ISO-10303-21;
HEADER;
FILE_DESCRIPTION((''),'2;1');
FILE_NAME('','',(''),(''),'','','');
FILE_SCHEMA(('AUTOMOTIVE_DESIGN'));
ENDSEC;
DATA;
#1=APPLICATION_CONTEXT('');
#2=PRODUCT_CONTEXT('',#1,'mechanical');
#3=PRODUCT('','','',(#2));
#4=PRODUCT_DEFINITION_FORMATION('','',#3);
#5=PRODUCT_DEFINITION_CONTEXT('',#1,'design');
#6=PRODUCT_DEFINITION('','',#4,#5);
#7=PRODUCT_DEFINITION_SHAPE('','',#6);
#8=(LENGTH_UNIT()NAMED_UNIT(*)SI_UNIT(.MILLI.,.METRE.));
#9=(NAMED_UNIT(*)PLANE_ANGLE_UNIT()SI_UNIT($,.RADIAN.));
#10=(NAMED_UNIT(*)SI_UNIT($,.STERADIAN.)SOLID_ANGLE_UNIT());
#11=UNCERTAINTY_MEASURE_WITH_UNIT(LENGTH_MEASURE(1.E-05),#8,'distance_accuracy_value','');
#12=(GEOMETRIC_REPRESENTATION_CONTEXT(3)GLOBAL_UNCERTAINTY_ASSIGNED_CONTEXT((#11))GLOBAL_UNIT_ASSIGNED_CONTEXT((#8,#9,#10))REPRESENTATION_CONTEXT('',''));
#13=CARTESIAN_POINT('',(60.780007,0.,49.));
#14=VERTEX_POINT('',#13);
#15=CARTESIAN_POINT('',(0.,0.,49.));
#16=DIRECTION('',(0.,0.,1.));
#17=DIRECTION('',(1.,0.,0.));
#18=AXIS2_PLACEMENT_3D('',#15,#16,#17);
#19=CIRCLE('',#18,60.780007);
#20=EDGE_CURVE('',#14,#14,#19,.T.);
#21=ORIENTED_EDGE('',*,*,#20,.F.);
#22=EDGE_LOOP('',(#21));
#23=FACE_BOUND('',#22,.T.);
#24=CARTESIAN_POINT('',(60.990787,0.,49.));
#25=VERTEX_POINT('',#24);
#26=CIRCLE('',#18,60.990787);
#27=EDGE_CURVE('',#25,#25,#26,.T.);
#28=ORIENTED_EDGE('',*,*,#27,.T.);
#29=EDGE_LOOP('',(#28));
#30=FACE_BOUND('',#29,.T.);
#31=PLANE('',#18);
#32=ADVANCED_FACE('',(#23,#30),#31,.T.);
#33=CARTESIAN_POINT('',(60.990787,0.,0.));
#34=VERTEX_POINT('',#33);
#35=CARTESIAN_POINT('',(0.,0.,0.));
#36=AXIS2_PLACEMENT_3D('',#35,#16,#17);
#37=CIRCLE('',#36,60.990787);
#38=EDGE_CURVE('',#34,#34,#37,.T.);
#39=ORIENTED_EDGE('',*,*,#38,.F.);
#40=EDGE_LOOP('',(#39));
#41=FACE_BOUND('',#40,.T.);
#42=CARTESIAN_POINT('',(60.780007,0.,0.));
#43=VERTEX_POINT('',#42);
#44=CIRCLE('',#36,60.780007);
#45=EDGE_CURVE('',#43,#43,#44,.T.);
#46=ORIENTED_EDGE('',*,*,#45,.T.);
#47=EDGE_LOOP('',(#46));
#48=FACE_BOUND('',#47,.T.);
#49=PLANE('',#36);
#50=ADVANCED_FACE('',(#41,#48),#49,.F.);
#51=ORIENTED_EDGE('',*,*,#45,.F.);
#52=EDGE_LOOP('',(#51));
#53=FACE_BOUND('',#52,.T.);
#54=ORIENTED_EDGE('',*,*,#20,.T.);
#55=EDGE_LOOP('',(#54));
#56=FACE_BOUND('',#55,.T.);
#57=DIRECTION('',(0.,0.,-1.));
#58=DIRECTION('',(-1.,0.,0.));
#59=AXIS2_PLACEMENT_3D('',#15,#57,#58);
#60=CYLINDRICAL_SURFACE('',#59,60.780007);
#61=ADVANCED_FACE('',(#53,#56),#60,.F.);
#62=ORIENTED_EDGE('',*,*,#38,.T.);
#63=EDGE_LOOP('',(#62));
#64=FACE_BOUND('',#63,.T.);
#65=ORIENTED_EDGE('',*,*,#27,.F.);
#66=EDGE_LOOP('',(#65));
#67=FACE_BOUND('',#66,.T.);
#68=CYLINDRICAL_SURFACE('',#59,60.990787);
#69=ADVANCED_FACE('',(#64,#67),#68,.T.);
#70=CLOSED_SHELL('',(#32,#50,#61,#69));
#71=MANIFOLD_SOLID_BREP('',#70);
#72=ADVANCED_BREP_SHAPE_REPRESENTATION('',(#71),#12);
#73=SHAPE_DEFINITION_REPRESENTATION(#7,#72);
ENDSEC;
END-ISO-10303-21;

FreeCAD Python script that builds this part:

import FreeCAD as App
import Part
import Sketcher

doc = App.newDocument("Part")
body = doc.addObject("PartDesign::Body", "Body")

sketch1 = body.newObject("Sketcher::SketchObject", "Sketch")
sketch1.AttachmentSupport = (doc.getObject("XY_Plane"), [""])
sketch1.MapMode = "FlatFace"
sketch1.addGeometry(Part.Circle(App.Vector(0, 0, 0), App.Vector(0, 0, 1), 61), False)
sketch1.addGeometry(Part.Circle(App.Vector(0, 0, 0), App.Vector(0, 0, 1), 61), False)
sketch1.addConstraint(Sketcher.Constraint("Coincident", 0, 3, -1, 1))
sketch1.addConstraint(Sketcher.Constraint("Coincident", 1, 3, -1, 1))
sketch1.addConstraint(Sketcher.Constraint("Diameter", 0, 121.981575))
sketch1.addConstraint(Sketcher.Constraint("Diameter", 1, 121.560013))
pad1 = body.newObject("PartDesign::Pad", "Pad")
pad1.Profile = sketch1
pad1.Length = 49

doc.recompute()
